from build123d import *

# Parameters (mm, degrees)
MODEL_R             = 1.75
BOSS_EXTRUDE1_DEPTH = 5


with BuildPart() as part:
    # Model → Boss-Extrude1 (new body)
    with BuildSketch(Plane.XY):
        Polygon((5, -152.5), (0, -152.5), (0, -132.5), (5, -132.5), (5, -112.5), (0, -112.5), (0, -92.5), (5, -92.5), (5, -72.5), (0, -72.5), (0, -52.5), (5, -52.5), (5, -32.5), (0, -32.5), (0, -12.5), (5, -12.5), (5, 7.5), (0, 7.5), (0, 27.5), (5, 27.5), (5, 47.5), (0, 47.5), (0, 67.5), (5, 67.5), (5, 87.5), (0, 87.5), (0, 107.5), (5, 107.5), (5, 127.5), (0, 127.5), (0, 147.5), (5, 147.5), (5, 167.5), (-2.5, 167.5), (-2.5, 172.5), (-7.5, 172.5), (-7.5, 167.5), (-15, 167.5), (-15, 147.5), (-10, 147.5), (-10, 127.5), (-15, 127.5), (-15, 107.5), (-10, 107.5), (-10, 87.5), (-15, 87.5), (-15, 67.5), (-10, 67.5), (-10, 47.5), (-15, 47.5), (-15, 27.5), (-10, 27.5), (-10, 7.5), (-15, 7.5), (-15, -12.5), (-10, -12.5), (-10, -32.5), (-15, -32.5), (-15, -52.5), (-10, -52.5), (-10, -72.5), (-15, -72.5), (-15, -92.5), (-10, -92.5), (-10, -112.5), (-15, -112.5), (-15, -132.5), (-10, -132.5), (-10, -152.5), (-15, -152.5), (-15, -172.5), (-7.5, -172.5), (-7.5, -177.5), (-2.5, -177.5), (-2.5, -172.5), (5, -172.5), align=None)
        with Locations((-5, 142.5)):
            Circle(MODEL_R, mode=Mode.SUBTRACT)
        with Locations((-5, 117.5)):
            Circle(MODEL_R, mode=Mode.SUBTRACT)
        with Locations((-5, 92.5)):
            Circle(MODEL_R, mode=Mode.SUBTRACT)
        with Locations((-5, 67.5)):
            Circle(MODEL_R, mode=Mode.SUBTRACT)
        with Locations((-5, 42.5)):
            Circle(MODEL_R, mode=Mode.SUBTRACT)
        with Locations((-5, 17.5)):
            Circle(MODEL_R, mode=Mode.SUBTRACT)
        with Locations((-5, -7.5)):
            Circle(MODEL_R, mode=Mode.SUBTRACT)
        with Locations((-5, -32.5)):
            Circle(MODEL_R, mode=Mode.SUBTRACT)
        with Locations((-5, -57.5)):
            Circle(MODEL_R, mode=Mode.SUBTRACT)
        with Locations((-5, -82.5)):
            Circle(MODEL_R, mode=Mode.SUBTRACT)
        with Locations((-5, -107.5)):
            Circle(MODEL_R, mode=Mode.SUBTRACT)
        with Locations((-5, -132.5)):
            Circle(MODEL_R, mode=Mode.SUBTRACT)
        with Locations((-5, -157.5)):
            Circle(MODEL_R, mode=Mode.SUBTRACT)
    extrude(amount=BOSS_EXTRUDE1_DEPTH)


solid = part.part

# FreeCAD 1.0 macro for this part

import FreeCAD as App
import Part
import Sketcher


def add_polygon(sketch, points):
    """Adds a closed chain of lines whose ends are joined by coincident constraints."""
    first, n = sketch.GeometryCount, len(points)
    for a, b in zip(points, points[1:] + points[:1]):
        sketch.addGeometry(Part.LineSegment(App.Vector(*a, 0), App.Vector(*b, 0)), False)
    for i in range(n):
        sketch.addConstraint(Sketcher.Constraint("Coincident", first + i, 2, first + (i + 1) % n, 1))

doc = App.newDocument("Part")
body = doc.addObject("PartDesign::Body", "Body")

# Sketch on XY plane
sketch1 = body.newObject("Sketcher::SketchObject", "Sketch")
sketch1.AttachmentSupport = (doc.getObject("XY_Plane"), [""])
sketch1.MapMode = "FlatFace"
add_polygon(sketch1, [(5, -152.5), (0, -152.5), (0, -132.5), (5, -132.5), (5, -112.5), (0, -112.5), (0, -92.5), (5, -92.5), (5, -72.5), (0, -72.5), (0, -52.5), (5, -52.5), (5, -32.5), (0, -32.5), (0, -12.5), (5, -12.5), (5, 7.5), (0, 7.5), (0, 27.5), (5, 27.5), (5, 47.5), (0, 47.5), (0, 67.5), (5, 67.5), (5, 87.5), (0, 87.5), (0, 107.5), (5, 107.5), (5, 127.5), (0, 127.5), (0, 147.5), (5, 147.5), (5, 167.5), (-2.5, 167.5), (-2.5, 172.5), (-7.5, 172.5), (-7.5, 167.5), (-15, 167.5), (-15, 147.5), (-10, 147.5), (-10, 127.5), (-15, 127.5), (-15, 107.5), (-10, 107.5), (-10, 87.5), (-15, 87.5), (-15, 67.5), (-10, 67.5), (-10, 47.5), (-15, 47.5), (-15, 27.5), (-10, 27.5), (-10, 7.5), (-15, 7.5), (-15, -12.5), (-10, -12.5), (-10, -32.5), (-15, -32.5), (-15, -52.5), (-10, -52.5), (-10, -72.5), (-15, -72.5), (-15, -92.5), (-10, -92.5), (-10, -112.5), (-15, -112.5), (-15, -132.5), (-10, -132.5), (-10, -152.5), (-15, -152.5), (-15, -172.5), (-7.5, -172.5), (-7.5, -177.5), (-2.5, -177.5), (-2.5, -172.5), (5, -172.5)])  # lines 0-75
sketch1.addGeometry(Part.Circle(App.Vector(-5, -157.5, 0), App.Vector(0, 0, 1), 1.75), False)  # 76
sketch1.addGeometry(Part.Circle(App.Vector(-5, -132.5, 0), App.Vector(0, 0, 1), 1.75), False)  # 77
sketch1.addGeometry(Part.Circle(App.Vector(-5, -107.5, 0), App.Vector(0, 0, 1), 1.75), False)  # 78
sketch1.addGeometry(Part.Circle(App.Vector(-5, -82.5, 0), App.Vector(0, 0, 1), 1.75), False)  # 79
sketch1.addGeometry(Part.Circle(App.Vector(-5, -57.5, 0), App.Vector(0, 0, 1), 1.75), False)  # 80
sketch1.addGeometry(Part.Circle(App.Vector(-5, -32.5, 0), App.Vector(0, 0, 1), 1.75), False)  # 81
sketch1.addGeometry(Part.Circle(App.Vector(-5, -7.5, 0), App.Vector(0, 0, 1), 1.75), False)  # 82
sketch1.addGeometry(Part.Circle(App.Vector(-5, 17.5, 0), App.Vector(0, 0, 1), 1.75), False)  # 83
sketch1.addGeometry(Part.Circle(App.Vector(-5, 42.5, 0), App.Vector(0, 0, 1), 1.75), False)  # 84
sketch1.addGeometry(Part.Circle(App.Vector(-5, 67.5, 0), App.Vector(0, 0, 1), 1.75), False)  # 85
sketch1.addGeometry(Part.Circle(App.Vector(-5, 92.5, 0), App.Vector(0, 0, 1), 1.75), False)  # 86
sketch1.addGeometry(Part.Circle(App.Vector(-5, 117.5, 0), App.Vector(0, 0, 1), 1.75), False)  # 87
sketch1.addGeometry(Part.Circle(App.Vector(-5, 142.5, 0), App.Vector(0, 0, 1), 1.75), False)  # 88
sketch1.addConstraint(Sketcher.Constraint("Horizontal", 0))
sketch1.addConstraint(Sketcher.Constraint("Vertical", 1))
sketch1.addConstraint(Sketcher.Constraint("Horizontal", 2))
sketch1.addConstraint(Sketcher.Constraint("Vertical", 3))
sketch1.addConstraint(Sketcher.Constraint("Horizontal", 4))
sketch1.addConstraint(Sketcher.Constraint("Vertical", 5))
sketch1.addConstraint(Sketcher.Constraint("Horizontal", 6))
sketch1.addConstraint(Sketcher.Constraint("Vertical", 7))
sketch1.addConstraint(Sketcher.Constraint("Horizontal", 8))
sketch1.addConstraint(Sketcher.Constraint("Vertical", 9))
sketch1.addConstraint(Sketcher.Constraint("Horizontal", 10))
sketch1.addConstraint(Sketcher.Constraint("Vertical", 11))
sketch1.addConstraint(Sketcher.Constraint("Horizontal", 12))
sketch1.addConstraint(Sketcher.Constraint("Vertical", 13))
sketch1.addConstraint(Sketcher.Constraint("Horizontal", 14))
sketch1.addConstraint(Sketcher.Constraint("Vertical", 15))
sketch1.addConstraint(Sketcher.Constraint("Horizontal", 16))
sketch1.addConstraint(Sketcher.Constraint("Vertical", 17))
sketch1.addConstraint(Sketcher.Constraint("Horizontal", 18))
sketch1.addConstraint(Sketcher.Constraint("Vertical", 19))
sketch1.addConstraint(Sketcher.Constraint("Horizontal", 20))
sketch1.addConstraint(Sketcher.Constraint("Vertical", 21))
sketch1.addConstraint(Sketcher.Constraint("Horizontal", 22))
sketch1.addConstraint(Sketcher.Constraint("Vertical", 23))
sketch1.addConstraint(Sketcher.Constraint("Horizontal", 24))
sketch1.addConstraint(Sketcher.Constraint("Vertical", 25))
sketch1.addConstraint(Sketcher.Constraint("Horizontal", 26))
sketch1.addConstraint(Sketcher.Constraint("Vertical", 27))
sketch1.addConstraint(Sketcher.Constraint("Horizontal", 28))
sketch1.addConstraint(Sketcher.Constraint("Vertical", 29))
sketch1.addConstraint(Sketcher.Constraint("Horizontal", 30))
sketch1.addConstraint(Sketcher.Constraint("Vertical", 31))
sketch1.addConstraint(Sketcher.Constraint("Horizontal", 32))
sketch1.addConstraint(Sketcher.Constraint("Vertical", 33))
sketch1.addConstraint(Sketcher.Constraint("Horizontal", 34))
sketch1.addConstraint(Sketcher.Constraint("Vertical", 35))
sketch1.addConstraint(Sketcher.Constraint("Horizontal", 36))
sketch1.addConstraint(Sketcher.Constraint("Vertical", 37))
sketch1.addConstraint(Sketcher.Constraint("Horizontal", 38))
sketch1.addConstraint(Sketcher.Constraint("Vertical", 39))
sketch1.addConstraint(Sketcher.Constraint("Horizontal", 40))
sketch1.addConstraint(Sketcher.Constraint("Vertical", 41))
sketch1.addConstraint(Sketcher.Constraint("Horizontal", 42))
sketch1.addConstraint(Sketcher.Constraint("Vertical", 43))
sketch1.addConstraint(Sketcher.Constraint("Horizontal", 44))
sketch1.addConstraint(Sketcher.Constraint("Vertical", 45))
sketch1.addConstraint(Sketcher.Constraint("Horizontal", 46))
sketch1.addConstraint(Sketcher.Constraint("Vertical", 47))
sketch1.addConstraint(Sketcher.Constraint("Horizontal", 48))
sketch1.addConstraint(Sketcher.Constraint("Vertical", 49))
sketch1.addConstraint(Sketcher.Constraint("Horizontal", 50))
sketch1.addConstraint(Sketcher.Constraint("Vertical", 51))
sketch1.addConstraint(Sketcher.Constraint("Horizontal", 52))
sketch1.addConstraint(Sketcher.Constraint("Vertical", 53))
sketch1.addConstraint(Sketcher.Constraint("Horizontal", 54))
sketch1.addConstraint(Sketcher.Constraint("Vertical", 55))
sketch1.addConstraint(Sketcher.Constraint("Horizontal", 56))
sketch1.addConstraint(Sketcher.Constraint("Vertical", 57))
sketch1.addConstraint(Sketcher.Constraint("Horizontal", 58))
sketch1.addConstraint(Sketcher.Constraint("Vertical", 59))
sketch1.addConstraint(Sketcher.Constraint("Horizontal", 60))
sketch1.addConstraint(Sketcher.Constraint("Vertical", 61))
sketch1.addConstraint(Sketcher.Constraint("Horizontal", 62))
sketch1.addConstraint(Sketcher.Constraint("Vertical", 63))
sketch1.addConstraint(Sketcher.Constraint("Horizontal", 64))
sketch1.addConstraint(Sketcher.Constraint("Vertical", 65))
sketch1.addConstraint(Sketcher.Constraint("Horizontal", 66))
sketch1.addConstraint(Sketcher.Constraint("Vertical", 67))
sketch1.addConstraint(Sketcher.Constraint("Horizontal", 68))
sketch1.addConstraint(Sketcher.Constraint("Vertical", 69))
sketch1.addConstraint(Sketcher.Constraint("Horizontal", 70))
sketch1.addConstraint(Sketcher.Constraint("Vertical", 71))
sketch1.addConstraint(Sketcher.Constraint("Horizontal", 72))
sketch1.addConstraint(Sketcher.Constraint("Vertical", 73))
sketch1.addConstraint(Sketcher.Constraint("Horizontal", 74))
sketch1.addConstraint(Sketcher.Constraint("Vertical", 75))
sketch1.addConstraint(Sketcher.Constraint("Equal", 76, 77))
sketch1.addConstraint(Sketcher.Constraint("Equal", 77, 78))
sketch1.addConstraint(Sketcher.Constraint("Equal", 78, 79))
sketch1.addConstraint(Sketcher.Constraint("Equal", 79, 80))
sketch1.addConstraint(Sketcher.Constraint("Equal", 80, 81))
sketch1.addConstraint(Sketcher.Constraint("Equal", 81, 82))
sketch1.addConstraint(Sketcher.Constraint("Equal", 82, 83))
sketch1.addConstraint(Sketcher.Constraint("Equal", 83, 84))
sketch1.addConstraint(Sketcher.Constraint("Equal", 84, 85))
sketch1.addConstraint(Sketcher.Constraint("Equal", 85, 86))
sketch1.addConstraint(Sketcher.Constraint("Equal", 86, 87))
sketch1.addConstraint(Sketcher.Constraint("Equal", 87, 88))
sketch1.addConstraint(Sketcher.Constraint("Symmetric", 34, 2, 70, 2, -1))
sketch1.addConstraint(Sketcher.Constraint("Symmetric", 33, 2, 73, 2, -1))
sketch1.addConstraint(Sketcher.Constraint("PointOnObject", 0, 2, -2))
sketch1.addConstraint(Sketcher.Constraint("PointOnObject", 4, 2, -2))
sketch1.addConstraint(Sketcher.Constraint("PointOnObject", 8, 2, -2))
sketch1.addConstraint(Sketcher.Constraint("PointOnObject", 12, 2, -2))
sketch1.addConstraint(Sketcher.Constraint("PointOnObject", 16, 2, -2))
sketch1.addConstraint(Sketcher.Constraint("PointOnObject", 20, 2, -2))
sketch1.addConstraint(Sketcher.Constraint("PointOnObject", 24, 2, -2))
sketch1.addConstraint(Sketcher.Constraint("PointOnObject", 28, 2, -2))
sketch1.addConstraint(Sketcher.Constraint("Horizontal", 77, 3, 1, 2))
sketch1.addConstraint(Sketcher.Constraint("Horizontal", 81, 3, 11, 2))
sketch1.addConstraint(Sketcher.Constraint("Horizontal", 85, 3, 21, 2))
sketch1.addConstraint(Sketcher.Constraint("Horizontal", 32, 2, 35, 2))
sketch1.addConstraint(Sketcher.Constraint("Horizontal", 30, 2, 37, 2))
sketch1.addConstraint(Sketcher.Constraint("Horizontal", 28, 2, 39, 2))
sketch1.addConstraint(Sketcher.Constraint("Horizontal", 26, 2, 41, 2))
sketch1.addConstraint(Sketcher.Constraint("Horizontal", 24, 2, 43, 2))
sketch1.addConstraint(Sketcher.Constraint("Horizontal", 22, 2, 45, 2))
sketch1.addConstraint(Sketcher.Constraint("Horizontal", 20, 2, 47, 2))
sketch1.addConstraint(Sketcher.Constraint("Horizontal", 18, 2, 49, 2))
sketch1.addConstraint(Sketcher.Constraint("Horizontal", 16, 2, 51, 2))
sketch1.addConstraint(Sketcher.Constraint("Horizontal", 14, 2, 53, 2))
sketch1.addConstraint(Sketcher.Constraint("Horizontal", 12, 2, 55, 2))
sketch1.addConstraint(Sketcher.Constraint("Horizontal", 10, 2, 57, 2))
sketch1.addConstraint(Sketcher.Constraint("Horizontal", 8, 2, 59, 2))
sketch1.addConstraint(Sketcher.Constraint("Horizontal", 6, 2, 61, 2))
sketch1.addConstraint(Sketcher.Constraint("Horizontal", 4, 2, 63, 2))
sketch1.addConstraint(Sketcher.Constraint("Horizontal", 2, 2, 65, 2))
sketch1.addConstraint(Sketcher.Constraint("Horizontal", 0, 2, 67, 2))
sketch1.addConstraint(Sketcher.Constraint("Vertical", 76, 3, 77, 3))
sketch1.addConstraint(Sketcher.Constraint("Vertical", 77, 3, 78, 3))
sketch1.addConstraint(Sketcher.Constraint("Vertical", 78, 3, 79, 3))
sketch1.addConstraint(Sketcher.Constraint("Vertical", 79, 3, 80, 3))
sketch1.addConstraint(Sketcher.Constraint("Vertical", 80, 3, 81, 3))
sketch1.addConstraint(Sketcher.Constraint("Vertical", 81, 3, 82, 3))
sketch1.addConstraint(Sketcher.Constraint("Vertical", 82, 3, 83, 3))
sketch1.addConstraint(Sketcher.Constraint("Vertical", 83, 3, 84, 3))
sketch1.addConstraint(Sketcher.Constraint("Vertical", 84, 3, 85, 3))
sketch1.addConstraint(Sketcher.Constraint("Vertical", 85, 3, 86, 3))
sketch1.addConstraint(Sketcher.Constraint("Vertical", 86, 3, 87, 3))
sketch1.addConstraint(Sketcher.Constraint("Vertical", 87, 3, 88, 3))
sketch1.addConstraint(Sketcher.Constraint("Vertical", 3, 2, 6, 2))
sketch1.addConstraint(Sketcher.Constraint("Vertical", 7, 2, 10, 2))
sketch1.addConstraint(Sketcher.Constraint("Vertical", 11, 2, 14, 2))
sketch1.addConstraint(Sketcher.Constraint("Vertical", 15, 2, 18, 2))
sketch1.addConstraint(Sketcher.Constraint("Vertical", 19, 2, 22, 2))
sketch1.addConstraint(Sketcher.Constraint("Vertical", 23, 2, 26, 2))
sketch1.addConstraint(Sketcher.Constraint("Vertical", 27, 2, 30, 2))
sketch1.addConstraint(Sketcher.Constraint("Vertical", 37, 2, 40, 2))
sketch1.addConstraint(Sketcher.Constraint("Vertical", 39, 2, 42, 2))
sketch1.addConstraint(Sketcher.Constraint("Vertical", 41, 2, 44, 2))
sketch1.addConstraint(Sketcher.Constraint("Vertical", 43, 2, 46, 2))
sketch1.addConstraint(Sketcher.Constraint("Vertical", 45, 2, 48, 2))
sketch1.addConstraint(Sketcher.Constraint("Vertical", 47, 2, 50, 2))
sketch1.addConstraint(Sketcher.Constraint("Vertical", 49, 2, 52, 2))
sketch1.addConstraint(Sketcher.Constraint("Vertical", 51, 2, 54, 2))
sketch1.addConstraint(Sketcher.Constraint("Vertical", 53, 2, 56, 2))
sketch1.addConstraint(Sketcher.Constraint("Vertical", 55, 2, 58, 2))
sketch1.addConstraint(Sketcher.Constraint("Vertical", 57, 2, 60, 2))
sketch1.addConstraint(Sketcher.Constraint("Vertical", 59, 2, 62, 2))
sketch1.addConstraint(Sketcher.Constraint("Vertical", 61, 2, 64, 2))
sketch1.addConstraint(Sketcher.Constraint("Vertical", 63, 2, 66, 2))
sketch1.addConstraint(Sketcher.Constraint("Vertical", 65, 2, 68, 2))
sketch1.addConstraint(Sketcher.Constraint("Vertical", 31, 2, 74, 2))
sketch1.addConstraint(Sketcher.Constraint("Equal", 30, 34))
sketch1.addConstraint(Sketcher.Constraint("Equal", 32, 36))
sketch1.addConstraint(Sketcher.Constraint("Equal", 34, 38))
sketch1.addConstraint(Sketcher.Constraint("Equal", 1, 3))
sketch1.addConstraint(Sketcher.Constraint("Equal", 3, 5))
sketch1.addConstraint(Sketcher.Constraint("Equal", 5, 7))
sketch1.addConstraint(Sketcher.Constraint("Equal", 7, 9))
sketch1.addConstraint(Sketcher.Constraint("Equal", 9, 11))
sketch1.addConstraint(Sketcher.Constraint("Equal", 11, 13))
sketch1.addConstraint(Sketcher.Constraint("Equal", 13, 15))
sketch1.addConstraint(Sketcher.Constraint("Equal", 15, 17))
sketch1.addConstraint(Sketcher.Constraint("Equal", 17, 19))
sketch1.addConstraint(Sketcher.Constraint("Equal", 19, 21))
sketch1.addConstraint(Sketcher.Constraint("Equal", 21, 23))
sketch1.addConstraint(Sketcher.Constraint("Equal", 23, 25))
sketch1.addConstraint(Sketcher.Constraint("Equal", 25, 27))
sketch1.addConstraint(Sketcher.Constraint("Equal", 27, 29))
sketch1.addConstraint(Sketcher.Constraint("Equal", 29, 31))
sketch1.addConstraint(Sketcher.Constraint("Equal", 72, 33))
sketch1.addConstraint(Sketcher.Constraint("Equal", 67, 69))
sketch1.addConstraint(Sketcher.Constraint("Equal", 35, 71))
sketch1.addConstraint(Sketcher.Constraint("Diameter", 76, 3.5))
sketch1.addConstraint(Sketcher.Constraint("DistanceX", 0, 2, 0, 1, 5.0))
sketch1.addConstraint(Sketcher.Constraint("DistanceY", 1, 1, 1, 2, 20.0))
sketch1.addConstraint(Sketcher.Constraint("DistanceX", 32, 2, 32, 1, 7.5))
sketch1.addConstraint(Sketcher.Constraint("DistanceX", 76, 3, -1, 1, 5.0))
sketch1.addConstraint(Sketcher.Constraint("DistanceY", 76, 3, -1, 1, 157.5))
sketch1.addConstraint(Sketcher.Constraint("DistanceY", 78, 3, -1, 1, 107.5))
sketch1.addConstraint(Sketcher.Constraint("DistanceY", 79, 3, -1, 1, 82.5))
sketch1.addConstraint(Sketcher.Constraint("DistanceY", 80, 3, -1, 1, 57.5))
sketch1.addConstraint(Sketcher.Constraint("DistanceY", 82, 3, -1, 1, 7.5))
sketch1.addConstraint(Sketcher.Constraint("DistanceY", -1, 1, 83, 3, 17.5))
sketch1.addConstraint(Sketcher.Constraint("DistanceY", -1, 1, 84, 3, 42.5))
sketch1.addConstraint(Sketcher.Constraint("DistanceY", -1, 1, 86, 3, 92.5))
sketch1.addConstraint(Sketcher.Constraint("DistanceY", -1, 1, 87, 3, 117.5))
sketch1.addConstraint(Sketcher.Constraint("DistanceY", -1, 1, 88, 3, 142.5))
pad1 = body.newObject("PartDesign::Pad", "Pad")
pad1.Profile = sketch1
pad1.Length = 5

doc.recompute()
